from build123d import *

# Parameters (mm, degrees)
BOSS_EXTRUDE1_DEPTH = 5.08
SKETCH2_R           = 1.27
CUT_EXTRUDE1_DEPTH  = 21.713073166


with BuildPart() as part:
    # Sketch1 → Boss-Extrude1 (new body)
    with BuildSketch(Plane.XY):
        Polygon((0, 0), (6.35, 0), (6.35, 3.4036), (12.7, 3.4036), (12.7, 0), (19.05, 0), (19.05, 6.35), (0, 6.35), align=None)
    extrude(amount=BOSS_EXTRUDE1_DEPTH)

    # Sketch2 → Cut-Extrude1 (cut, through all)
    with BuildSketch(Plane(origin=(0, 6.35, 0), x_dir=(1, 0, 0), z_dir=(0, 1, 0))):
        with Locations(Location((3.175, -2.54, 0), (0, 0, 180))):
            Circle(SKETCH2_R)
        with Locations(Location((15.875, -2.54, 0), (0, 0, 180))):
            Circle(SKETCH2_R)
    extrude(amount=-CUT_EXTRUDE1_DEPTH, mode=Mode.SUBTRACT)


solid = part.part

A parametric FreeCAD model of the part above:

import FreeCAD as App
import Part
import Sketcher

V = App.Vector
Q = App.Units.Quantity


def add_polygon(sketch, points):
    """Adds a closed chain of lines whose ends are joined by coincident constraints."""
    first, n = sketch.GeometryCount, len(points)
    for a, b in zip(points, points[1:] + points[:1]):
        sketch.addGeometry(Part.LineSegment(App.Vector(*a, 0), App.Vector(*b, 0)), False)
    for i in range(n):
        sketch.addConstraint(Sketcher.Constraint("Coincident", first + i, 2, first + (i + 1) % n, 1))

doc = App.newDocument("Part")
params = doc.addObject("Spreadsheet::Sheet", "Params")
for row, (alias, value) in enumerate([
    ("sketch1_width", "0.25 in"),
    ("sketch1_height", "0.134 in"),
    ("pad1_length", "0.2 in"),
    ("sketch2_diameter", "0.1 in"),
], start=1):
    params.set(f"A{row}", alias)
    params.set(f"B{row}", "=" + value)
    params.setAlias(f"B{row}", alias)

body = doc.addObject("PartDesign::Body", "Body")

# Sketch on XY plane
sketch1 = body.newObject("Sketcher::SketchObject", "Sketch")
sketch1.AttachmentSupport = (doc.getObject("XY_Plane"), [""])
sketch1.MapMode = "FlatFace"
add_polygon(sketch1, [(0, 0), (6.3, 0), (6.3, 3.4), (12.7, 3.4), (12.7, 0), (19.1, 0), (19.1, 6.3), (0, 6.3)])  # lines 0-7
sketch1.addConstraint(Sketcher.Constraint("Horizontal", 0))
sketch1.addConstraint(Sketcher.Constraint("Vertical", 1))
sketch1.addConstraint(Sketcher.Constraint("Horizontal", 2))
sketch1.addConstraint(Sketcher.Constraint("Vertical", 3))
sketch1.addConstraint(Sketcher.Constraint("Horizontal", 4))
sketch1.addConstraint(Sketcher.Constraint("Vertical", 5))
sketch1.addConstraint(Sketcher.Constraint("Horizontal", 6))
sketch1.addConstraint(Sketcher.Constraint("Vertical", 7))
sketch1.addConstraint(Sketcher.Constraint("Coincident", 7, 2, -1, 1))
sketch1.addConstraint(Sketcher.Constraint("PointOnObject", 3, 2, -1))
sketch1.addConstraint(Sketcher.Constraint("Equal", 0, 2))
sketch1.addConstraint(Sketcher.Constraint("Equal", 2, 4))
sketch1.addConstraint(Sketcher.Constraint("Equal", 4, 5))
sketch1.addConstraint(Sketcher.Constraint("DistanceX", 0, 1, 0, 2, Q("0.25 in")))
sketch1.addConstraint(Sketcher.Constraint("DistanceY", 1, 1, 1, 2, Q("0.134 in")))
sketch1.setExpression("Constraints[21]", "Params.sketch1_width")
sketch1.setExpression("Constraints[22]", "Params.sketch1_height")
pad1 = body.newObject("PartDesign::Pad", "Pad")
pad1.Profile = sketch1
pad1.setExpression("Length", "Params.pad1_length")

# Sketch on XZ plane
sketch2 = body.newObject("Sketcher::SketchObject", "Sketch001")
sketch2.AttachmentSupport = (doc.getObject("XZ_Plane"), [""])
sketch2.MapMode = "FlatFace"
sketch2.AttachmentOffset = App.Placement(V(0, 0, -0.25 * 25.4), App.Rotation())
sketch2.addGeometry(Part.Circle(V(3.2, 2.5, 0), V(0, 0, 1), 1.3), False)
sketch2.addGeometry(Part.Circle(V(15.9, 2.5, 0), V(0, 0, 1), 1.3), False)
sketch2.addConstraint(Sketcher.Constraint("Equal", 0, 1))
sketch2.addConstraint(Sketcher.Constraint("Horizontal", 0, 3, 1, 3))
sketch2.addConstraint(Sketcher.Constraint("Diameter", 0, Q("0.1 in")))
sketch2.addConstraint(Sketcher.Constraint("DistanceY", -1, 1, 0, 3, Q("0.1 in")))
sketch2.addConstraint(Sketcher.Constraint("DistanceX", 0, 3, 1, 3, Q("0.5 in")))
sketch2.addConstraint(Sketcher.Constraint("DistanceX", -1, 1, 0, 3, Q("0.125 in")))
sketch2.setExpression("Constraints[2]", "Params.sketch2_diameter")
pocket1 = body.newObject("PartDesign::Pocket", "Pocket")
pocket1.Profile = sketch2
pocket1.Type = "ThroughAll"
pocket1.Reversed = True

doc.recompute()
